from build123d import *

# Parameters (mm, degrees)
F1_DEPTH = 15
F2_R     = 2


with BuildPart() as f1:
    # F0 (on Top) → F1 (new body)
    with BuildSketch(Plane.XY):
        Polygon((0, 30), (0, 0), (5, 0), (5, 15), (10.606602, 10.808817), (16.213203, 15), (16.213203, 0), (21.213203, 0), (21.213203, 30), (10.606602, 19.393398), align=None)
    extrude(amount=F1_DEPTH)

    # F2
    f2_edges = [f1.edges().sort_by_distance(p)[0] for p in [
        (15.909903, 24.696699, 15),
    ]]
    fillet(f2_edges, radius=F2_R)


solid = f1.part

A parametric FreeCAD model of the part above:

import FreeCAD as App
import Part
import Sketcher
Q = App.Units.Quantity


def edges_at(feature, points):
    """Names of the edges that pass closest to the given points."""
    edges = feature.Shape.Edges
    near = lambda p: min(range(len(edges)), key=lambda i: edges[i].distToShape(Part.Vertex(*p))[0])
    return sorted({f"Edge{near(p) + 1}" for p in points})

doc = App.newDocument("Part")
body = doc.addObject("PartDesign::Body", "Body")

# Sketch on XY plane
sketch1 = body.newObject("Sketcher::SketchObject", "Sketch")
sketch1.AttachmentSupport = (doc.getObject("XY_Plane"), [""])
sketch1.MapMode = "FlatFace"
sketch1.addGeometry([
    Part.LineSegment(App.Vector(0, 30, 0), App.Vector(0, 0, 0)),  # 0
    Part.LineSegment(App.Vector(0, 0, 0), App.Vector(5, 0, 0)),  # 1
    Part.LineSegment(App.Vector(5, 0, 0), App.Vector(5, 15, 0)),  # 2
    Part.LineSegment(App.Vector(5, 15, 0), App.Vector(11, 11, 0)),  # 3
    Part.LineSegment(App.Vector(11, 11, 0), App.Vector(16, 15, 0)),  # 4
    Part.LineSegment(App.Vector(16, 15, 0), App.Vector(16, 0, 0)),  # 5
    Part.LineSegment(App.Vector(16, 0, 0), App.Vector(21, 0, 0)),  # 6
    Part.LineSegment(App.Vector(21, 0, 0), App.Vector(21, 30, 0)),  # 7
    Part.LineSegment(App.Vector(21, 30, 0), App.Vector(11, 19, 0)),  # 8
    Part.LineSegment(App.Vector(11, 19, 0), App.Vector(0, 30, 0)),  # 9
], False)
sketch1.addConstraint([
    Sketcher.Constraint("Coincident", 0, 2, 1, 1),
    Sketcher.Constraint("Coincident", 1, 2, 2, 1),
    Sketcher.Constraint("Coincident", 2, 2, 3, 1),
    Sketcher.Constraint("Coincident", 3, 2, 4, 1),
    Sketcher.Constraint("Coincident", 4, 2, 5, 1),
    Sketcher.Constraint("Coincident", 5, 2, 6, 1),
    Sketcher.Constraint("Coincident", 6, 2, 7, 1),
    Sketcher.Constraint("Coincident", 7, 2, 8, 1),
    Sketcher.Constraint("Coincident", 8, 2, 9, 1),
    Sketcher.Constraint("Coincident", 9, 2, 0, 1),
    Sketcher.Constraint("Vertical", 0),
    Sketcher.Constraint("Horizontal", 1),
    Sketcher.Constraint("Vertical", 2),
    Sketcher.Constraint("Vertical", 5),
    Sketcher.Constraint("Horizontal", 6),
    Sketcher.Constraint("Vertical", 7),
    Sketcher.Constraint("Coincident", 0, 2, -1, 1),
    Sketcher.Constraint("PointOnObject", 5, 2, -1),
    Sketcher.Constraint("Perpendicular", 8, 9),
    Sketcher.Constraint("Horizontal", 2, 2, 4, 2),
    Sketcher.Constraint("Horizontal", 7, 2, 9, 2),
    Sketcher.Constraint("Vertical", 3, 2, 8, 2),
    Sketcher.Constraint("Equal", 1, 6),
    Sketcher.Constraint("Equal", 3, 4),
    Sketcher.Constraint("DistanceX", 1, 1, 1, 2, Q("5 mm")),
    Sketcher.Constraint("DistanceY", 0, 2, 0, 1, Q("30 mm")),
    Sketcher.Constraint("DistanceY", 2, 1, 2, 2, Q("15 mm")),
    Sketcher.Constraint("Distance", 3, Q("7 mm")),
    Sketcher.Constraint("Distance", 8, Q("15 mm")),
])
pad1 = body.newObject("PartDesign::Pad", "Pad")
pad1.Profile = sketch1
pad1.Length = 15
doc.recompute()

fillet = body.newObject("PartDesign::Fillet", "Fillet")
fillet.Base = (pad1, edges_at(pad1, [(15.91, 24.697, 15)]))
fillet.Radius = 2

doc.recompute()
